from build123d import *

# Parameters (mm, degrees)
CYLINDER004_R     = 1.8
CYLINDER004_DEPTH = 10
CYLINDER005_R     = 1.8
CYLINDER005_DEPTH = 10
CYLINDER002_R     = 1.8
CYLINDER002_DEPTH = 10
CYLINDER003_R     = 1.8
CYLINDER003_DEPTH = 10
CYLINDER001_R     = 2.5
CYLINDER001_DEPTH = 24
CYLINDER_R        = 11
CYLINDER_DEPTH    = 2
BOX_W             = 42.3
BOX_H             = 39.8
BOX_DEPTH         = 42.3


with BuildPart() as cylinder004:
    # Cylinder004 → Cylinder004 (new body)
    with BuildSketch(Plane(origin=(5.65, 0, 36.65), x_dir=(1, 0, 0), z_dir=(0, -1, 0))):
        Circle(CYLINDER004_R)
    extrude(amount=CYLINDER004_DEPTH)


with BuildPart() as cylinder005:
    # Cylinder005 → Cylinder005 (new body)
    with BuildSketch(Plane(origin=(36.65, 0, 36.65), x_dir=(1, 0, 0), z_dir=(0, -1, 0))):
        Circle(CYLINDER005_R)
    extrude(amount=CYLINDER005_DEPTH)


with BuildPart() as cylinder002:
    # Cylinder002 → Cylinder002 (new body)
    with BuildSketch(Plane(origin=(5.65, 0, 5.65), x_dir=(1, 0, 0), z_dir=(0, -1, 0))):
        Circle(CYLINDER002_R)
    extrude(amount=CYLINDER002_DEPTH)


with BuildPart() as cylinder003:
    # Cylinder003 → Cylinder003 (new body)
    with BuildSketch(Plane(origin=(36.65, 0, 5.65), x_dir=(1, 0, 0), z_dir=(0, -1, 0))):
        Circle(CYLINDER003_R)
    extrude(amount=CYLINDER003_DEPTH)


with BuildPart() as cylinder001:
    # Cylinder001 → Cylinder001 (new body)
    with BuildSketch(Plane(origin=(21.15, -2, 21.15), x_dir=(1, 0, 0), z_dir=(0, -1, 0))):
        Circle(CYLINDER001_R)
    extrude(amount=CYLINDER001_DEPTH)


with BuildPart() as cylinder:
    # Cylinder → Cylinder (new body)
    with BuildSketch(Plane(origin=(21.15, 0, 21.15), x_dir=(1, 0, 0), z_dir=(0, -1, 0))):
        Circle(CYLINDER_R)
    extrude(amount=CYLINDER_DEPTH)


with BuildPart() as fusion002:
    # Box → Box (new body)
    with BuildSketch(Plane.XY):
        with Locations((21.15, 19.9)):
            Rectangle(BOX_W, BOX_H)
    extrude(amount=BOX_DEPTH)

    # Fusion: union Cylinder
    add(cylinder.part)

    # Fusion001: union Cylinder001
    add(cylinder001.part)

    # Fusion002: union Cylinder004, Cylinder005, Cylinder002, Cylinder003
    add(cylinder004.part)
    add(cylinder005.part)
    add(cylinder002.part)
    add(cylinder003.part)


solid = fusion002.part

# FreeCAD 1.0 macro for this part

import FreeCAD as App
import Part
import Sketcher

V = App.Vector
Q = App.Units.Quantity

doc = App.newDocument("Part")
body = doc.addObject("PartDesign::Body", "Body")

sketch1 = doc.addObject("Sketcher::SketchObject", "Sketch")
body.addObject(sketch1)
sketch1.AttachmentSupport = (doc.XZ_Plane, [""])
sketch1.MapMode = "FlatFace"
sketch1.addGeometry(Part.Circle(V(5.7, 36.6, 0), V(0, 0, 1), 1.8), False)
sketch1.addConstraint([
    Sketcher.Constraint("Diameter", 0, Q("3.6 mm")),
    Sketcher.Constraint("DistanceX", -1, 1, 0, 3, Q("5.65 mm")),
    Sketcher.Constraint("DistanceY", -1, 1, 0, 3, Q("36.65 mm")),
])
pad1 = doc.addObject("PartDesign::Pad", "Pad")
body.addObject(pad1)
pad1.Profile = sketch1
pad1.Length = 10
body2 = doc.addObject("PartDesign::Body", "Body001")

sketch2 = doc.addObject("Sketcher::SketchObject", "Sketch001")
body2.addObject(sketch2)
sketch2.AttachmentSupport = (doc.getObject("XZ_Plane001"), [""])
sketch2.MapMode = "FlatFace"
sketch2.addGeometry(Part.Circle(V(36.6, 36.6, 0), V(0, 0, 1), 1.8), False)
sketch2.addConstraint([
    Sketcher.Constraint("Diameter", 0, Q("3.6 mm")),
    Sketcher.Constraint("DistanceX", -1, 1, 0, 3, Q("36.65 mm")),
    Sketcher.Constraint("DistanceY", -1, 1, 0, 3, Q("36.65 mm")),
])
pad2 = doc.addObject("PartDesign::Pad", "Pad001")
body2.addObject(pad2)
pad2.Profile = sketch2
pad2.Length = 10
body3 = doc.addObject("PartDesign::Body", "Body002")

sketch3 = doc.addObject("Sketcher::SketchObject", "Sketch002")
body3.addObject(sketch3)
sketch3.AttachmentSupport = (doc.getObject("XZ_Plane002"), [""])
sketch3.MapMode = "FlatFace"
sketch3.addGeometry(Part.Circle(V(5.7, 5.7, 0), V(0, 0, 1), 1.8), False)
sketch3.addConstraint([
    Sketcher.Constraint("Diameter", 0, Q("3.6 mm")),
    Sketcher.Constraint("DistanceX", -1, 1, 0, 3, Q("5.65 mm")),
    Sketcher.Constraint("DistanceY", -1, 1, 0, 3, Q("5.65 mm")),
])
pad3 = doc.addObject("PartDesign::Pad", "Pad002")
body3.addObject(pad3)
pad3.Profile = sketch3
pad3.Length = 10
body4 = doc.addObject("PartDesign::Body", "Body003")

sketch4 = doc.addObject("Sketcher::SketchObject", "Sketch003")
body4.addObject(sketch4)
sketch4.AttachmentSupport = (doc.getObject("XZ_Plane003"), [""])
sketch4.MapMode = "FlatFace"
sketch4.addGeometry(Part.Circle(V(36.6, 5.7, 0), V(0, 0, 1), 1.8), False)
sketch4.addConstraint([
    Sketcher.Constraint("Diameter", 0, Q("3.6 mm")),
    Sketcher.Constraint("DistanceX", -1, 1, 0, 3, Q("36.65 mm")),
    Sketcher.Constraint("DistanceY", -1, 1, 0, 3, Q("5.65 mm")),
])
pad4 = doc.addObject("PartDesign::Pad", "Pad003")
body4.addObject(pad4)
pad4.Profile = sketch4
pad4.Length = 10
body5 = doc.addObject("PartDesign::Body", "Body004")

sketch5 = doc.addObject("Sketcher::SketchObject", "Sketch004")
body5.addObject(sketch5)
sketch5.AttachmentSupport = (doc.getObject("XZ_Plane004"), [""])
sketch5.MapMode = "FlatFace"
sketch5.AttachmentOffset = App.Placement(V(0, 0, 2), App.Rotation())
sketch5.addGeometry(Part.Circle(V(21.1, 21.1, 0), V(0, 0, 1), 2.5), False)
sketch5.addConstraint([
    Sketcher.Constraint("Diameter", 0, Q("5 mm")),
    Sketcher.Constraint("DistanceX", -1, 1, 0, 3, Q("21.15 mm")),
    Sketcher.Constraint("DistanceY", -1, 1, 0, 3, Q("21.15 mm")),
])
pad5 = doc.addObject("PartDesign::Pad", "Pad004")
body5.addObject(pad5)
pad5.Profile = sketch5
pad5.Length = 24
body6 = doc.addObject("PartDesign::Body", "Body005")

sketch6 = doc.addObject("Sketcher::SketchObject", "Sketch005")
body6.addObject(sketch6)
sketch6.AttachmentSupport = (doc.getObject("XZ_Plane005"), [""])
sketch6.MapMode = "FlatFace"
sketch6.addGeometry(Part.Circle(V(21, 21, 0), V(0, 0, 1), 11), False)
sketch6.addConstraint([
    Sketcher.Constraint("Diameter", 0, Q("22 mm")),
    Sketcher.Constraint("DistanceX", -1, 1, 0, 3, Q("21.15 mm")),
    Sketcher.Constraint("DistanceY", -1, 1, 0, 3, Q("21.15 mm")),
])
pad6 = doc.addObject("PartDesign::Pad", "Pad005")
body6.addObject(pad6)
pad6.Profile = sketch6
pad6.Length = 2
body7 = doc.addObject("PartDesign::Body", "Body006")

sketch7 = doc.addObject("Sketcher::SketchObject", "Sketch006")
body7.addObject(sketch7)
sketch7.AttachmentSupport = (doc.getObject("XY_Plane006"), [""])
sketch7.MapMode = "FlatFace"
sketch7.addGeometry([
    Part.LineSegment(V(0, 40, 0), V(0, 0, 0)),
    Part.LineSegment(V(0, 0, 0), V(42, 0, 0)),
    Part.LineSegment(V(42, 0, 0), V(42, 40, 0)),
    Part.LineSegment(V(42, 40, 0), V(0, 40, 0)),
], False)
sketch7.addConstraint([
    Sketcher.Constraint("Coincident", 0, 2, 1, 1),
    Sketcher.Constraint("Coincident", 1, 2, 2, 1),
    Sketcher.Constraint("Coincident", 2, 2, 3, 1),
    Sketcher.Constraint("Coincident", 3, 2, 0, 1),
    Sketcher.Constraint("Vertical", 0),
    Sketcher.Constraint("Horizontal", 1),
    Sketcher.Constraint("Vertical", 2),
    Sketcher.Constraint("Horizontal", 3),
    Sketcher.Constraint("Coincident", 0, 2, -1, 1),
    Sketcher.Constraint("DistanceX", 1, 1, 1, 2, Q("42.3 mm")),
    Sketcher.Constraint("DistanceY", 0, 2, 0, 1, Q("39.8 mm")),
])
pad7 = doc.addObject("PartDesign::Pad", "Pad006")
body7.addObject(pad7)
pad7.Profile = sketch7
pad7.Length = 42.3
doc.recompute()

boolean = doc.addObject("PartDesign::Boolean", "Boolean")
body7.addObject(boolean)
boolean.Type = "Fuse"
boolean.addObjects([body6])
doc.recompute()

boolean2 = doc.addObject("PartDesign::Boolean", "Boolean001")
body7.addObject(boolean2)
boolean2.Type = "Fuse"
boolean2.addObjects([body5])
doc.recompute()

boolean3 = doc.addObject("PartDesign::Boolean", "Boolean002")
body7.addObject(boolean3)
boolean3.Type = "Fuse"
boolean3.addObjects([body])
doc.recompute()

boolean4 = doc.addObject("PartDesign::Boolean", "Boolean003")
body7.addObject(boolean4)
boolean4.Type = "Fuse"
boolean4.addObjects([body2])
doc.recompute()

boolean5 = doc.addObject("PartDesign::Boolean", "Boolean004")
body7.addObject(boolean5)
boolean5.Type = "Fuse"
boolean5.addObjects([body3])
doc.recompute()

boolean6 = doc.addObject("PartDesign::Boolean", "Boolean005")
body7.addObject(boolean6)
boolean6.Type = "Fuse"
boolean6.addObjects([body4])

doc.recompute()
